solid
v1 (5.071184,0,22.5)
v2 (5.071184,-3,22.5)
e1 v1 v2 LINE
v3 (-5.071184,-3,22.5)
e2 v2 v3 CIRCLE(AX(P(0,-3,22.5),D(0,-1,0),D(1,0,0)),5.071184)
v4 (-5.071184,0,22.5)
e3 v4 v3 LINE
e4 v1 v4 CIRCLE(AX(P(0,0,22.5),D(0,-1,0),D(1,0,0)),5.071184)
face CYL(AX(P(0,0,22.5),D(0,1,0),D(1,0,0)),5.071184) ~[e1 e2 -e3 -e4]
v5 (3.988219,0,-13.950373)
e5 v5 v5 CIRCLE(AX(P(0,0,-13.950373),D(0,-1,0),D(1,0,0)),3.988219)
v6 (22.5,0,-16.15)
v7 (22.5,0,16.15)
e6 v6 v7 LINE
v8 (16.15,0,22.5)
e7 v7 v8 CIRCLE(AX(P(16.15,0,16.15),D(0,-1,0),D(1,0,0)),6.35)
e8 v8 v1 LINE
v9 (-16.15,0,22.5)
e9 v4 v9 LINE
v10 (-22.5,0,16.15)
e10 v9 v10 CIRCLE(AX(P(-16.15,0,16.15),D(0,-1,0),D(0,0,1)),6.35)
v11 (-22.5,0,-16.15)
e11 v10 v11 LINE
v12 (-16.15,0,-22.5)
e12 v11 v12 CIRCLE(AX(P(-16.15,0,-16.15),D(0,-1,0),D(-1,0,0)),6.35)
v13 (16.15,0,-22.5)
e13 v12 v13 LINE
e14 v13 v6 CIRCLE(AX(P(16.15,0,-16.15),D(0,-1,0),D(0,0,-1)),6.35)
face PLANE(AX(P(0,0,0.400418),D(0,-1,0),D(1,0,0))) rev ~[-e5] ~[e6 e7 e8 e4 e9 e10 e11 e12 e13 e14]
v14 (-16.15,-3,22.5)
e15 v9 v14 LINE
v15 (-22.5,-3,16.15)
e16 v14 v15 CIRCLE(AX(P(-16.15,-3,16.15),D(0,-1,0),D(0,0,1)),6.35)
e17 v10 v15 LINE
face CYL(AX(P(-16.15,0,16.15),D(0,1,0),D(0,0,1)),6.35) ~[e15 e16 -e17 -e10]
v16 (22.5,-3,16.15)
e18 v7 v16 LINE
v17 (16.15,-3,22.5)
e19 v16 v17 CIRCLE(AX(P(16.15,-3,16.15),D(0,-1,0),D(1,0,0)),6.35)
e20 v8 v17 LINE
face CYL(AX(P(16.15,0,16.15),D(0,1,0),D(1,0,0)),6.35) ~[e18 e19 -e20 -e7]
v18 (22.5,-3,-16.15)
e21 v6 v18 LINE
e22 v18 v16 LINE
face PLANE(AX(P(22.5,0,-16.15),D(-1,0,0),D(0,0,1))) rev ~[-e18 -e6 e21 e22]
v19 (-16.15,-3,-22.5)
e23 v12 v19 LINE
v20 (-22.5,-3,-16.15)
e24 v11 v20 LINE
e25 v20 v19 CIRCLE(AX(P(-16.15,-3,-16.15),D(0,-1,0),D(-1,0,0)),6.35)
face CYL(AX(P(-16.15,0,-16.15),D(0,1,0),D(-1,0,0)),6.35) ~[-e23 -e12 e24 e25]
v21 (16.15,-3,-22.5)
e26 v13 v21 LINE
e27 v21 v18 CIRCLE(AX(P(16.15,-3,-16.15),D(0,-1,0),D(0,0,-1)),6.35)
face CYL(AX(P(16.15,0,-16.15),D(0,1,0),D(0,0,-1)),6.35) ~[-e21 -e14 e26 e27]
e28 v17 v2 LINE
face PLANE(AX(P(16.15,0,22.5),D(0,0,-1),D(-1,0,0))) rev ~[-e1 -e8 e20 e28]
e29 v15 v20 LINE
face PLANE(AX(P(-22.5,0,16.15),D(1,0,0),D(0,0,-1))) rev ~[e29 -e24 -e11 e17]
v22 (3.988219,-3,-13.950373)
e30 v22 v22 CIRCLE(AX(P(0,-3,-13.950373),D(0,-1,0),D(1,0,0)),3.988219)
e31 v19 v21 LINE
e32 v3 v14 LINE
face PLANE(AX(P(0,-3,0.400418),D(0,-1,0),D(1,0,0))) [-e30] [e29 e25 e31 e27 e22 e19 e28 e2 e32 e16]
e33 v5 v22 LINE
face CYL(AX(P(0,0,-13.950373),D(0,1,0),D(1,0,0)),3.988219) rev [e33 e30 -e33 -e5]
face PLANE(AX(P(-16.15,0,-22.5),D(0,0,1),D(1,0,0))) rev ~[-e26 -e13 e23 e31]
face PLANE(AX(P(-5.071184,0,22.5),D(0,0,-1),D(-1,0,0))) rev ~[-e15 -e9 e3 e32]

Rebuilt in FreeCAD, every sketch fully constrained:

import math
import FreeCAD as App
import Part
import Sketcher
from FreeCAD import Vector

doc = App.newDocument("Part")
body = doc.addObject("PartDesign::Body", "Body")

sketch1 = body.newObject("Sketcher::SketchObject", "Sketch")
sketch1.AttachmentSupport = (doc.getObject("XZ_Plane"), [""])
sketch1.MapMode = "FlatFace"
sketch1.addGeometry([
    Part.ArcOfCircle(Part.Circle(Vector(16.1, 16.1, 0), Vector(0, 0, 1), 6.3), math.radians(0), math.radians(90)),
    Part.LineSegment(Vector(16.1, 22.5, 0), Vector(5.1, 22.5, 0)),
    Part.ArcOfCircle(Part.Circle(Vector(0, 22.5, 0), Vector(0, 0, 1), 5.1), math.radians(0), math.radians(180)),
    Part.LineSegment(Vector(-5.1, 22.5, 0), Vector(-16.1, 22.5, 0)),
    Part.ArcOfCircle(Part.Circle(Vector(-16.1, 16.1, 0), Vector(0, 0, 1), 6.3), math.radians(90), math.radians(180)),
    Part.LineSegment(Vector(-22.5, 16.1, 0), Vector(-22.5, -16.1, 0)),
    Part.ArcOfCircle(Part.Circle(Vector(-16.1, -16.1, 0), Vector(0, 0, 1), 6.3), math.radians(180), math.radians(270)),
    Part.LineSegment(Vector(-16.1, -22.5, 0), Vector(16.1, -22.5, 0)),
    Part.ArcOfCircle(Part.Circle(Vector(16.1, -16.1, 0), Vector(0, 0, 1), 6.3), math.radians(-90), math.radians(0)),
    Part.LineSegment(Vector(22.5, -16.1, 0), Vector(22.5, 16.1, 0)),
    Part.Circle(Vector(0, -14, 0), Vector(0, 0, 1), 4),
], False)
sketch1.addConstraint([
    Sketcher.Constraint("Tangent", 0, 2, 1, 1),
    Sketcher.Constraint("Coincident", 1, 2, 2, 1),
    Sketcher.Constraint("Coincident", 2, 2, 3, 1),
    Sketcher.Constraint("Tangent", 3, 2, 4, 1),
    Sketcher.Constraint("Tangent", 4, 2, 5, 1),
    Sketcher.Constraint("Tangent", 5, 2, 6, 1),
    Sketcher.Constraint("Tangent", 6, 2, 7, 1),
    Sketcher.Constraint("Tangent", 7, 2, 8, 1),
    Sketcher.Constraint("Tangent", 8, 2, 9, 1),
    Sketcher.Constraint("Tangent", 9, 2, 0, 1),
    Sketcher.Constraint("Horizontal", 1),
    Sketcher.Constraint("Horizontal", 3),
    Sketcher.Constraint("Vertical", 5),
    Sketcher.Constraint("Horizontal", 7),
    Sketcher.Constraint("Vertical", 9),
    Sketcher.Constraint("Equal", 0, 4),
    Sketcher.Constraint("Equal", 4, 6),
    Sketcher.Constraint("Equal", 6, 8),
    Sketcher.Constraint("Symmetric", 0, 3, 6, 3, -1, 1),
    Sketcher.Constraint("Symmetric", 1, 2, 2, 2, -2),
    Sketcher.Constraint("PointOnObject", 10, 3, -2),
    Sketcher.Constraint("Horizontal", 2, 3, 0, 2),
    Sketcher.Constraint("Equal", 7, 5),
    Sketcher.Constraint("Radius", 0, 6.35),
    Sketcher.Constraint("DistanceX", 7, 1, 7, 2, 32.3),
    Sketcher.Constraint("Diameter", 10, 7.976438),
    Sketcher.Constraint("Radius", 2, 5.071184),
    Sketcher.Constraint("DistanceY", 10, 3, -1, 1, 13.950373),
])
pad1 = body.newObject("PartDesign::Pad", "Pad")
pad1.Profile = sketch1
pad1.Length = 3

doc.recompute()
